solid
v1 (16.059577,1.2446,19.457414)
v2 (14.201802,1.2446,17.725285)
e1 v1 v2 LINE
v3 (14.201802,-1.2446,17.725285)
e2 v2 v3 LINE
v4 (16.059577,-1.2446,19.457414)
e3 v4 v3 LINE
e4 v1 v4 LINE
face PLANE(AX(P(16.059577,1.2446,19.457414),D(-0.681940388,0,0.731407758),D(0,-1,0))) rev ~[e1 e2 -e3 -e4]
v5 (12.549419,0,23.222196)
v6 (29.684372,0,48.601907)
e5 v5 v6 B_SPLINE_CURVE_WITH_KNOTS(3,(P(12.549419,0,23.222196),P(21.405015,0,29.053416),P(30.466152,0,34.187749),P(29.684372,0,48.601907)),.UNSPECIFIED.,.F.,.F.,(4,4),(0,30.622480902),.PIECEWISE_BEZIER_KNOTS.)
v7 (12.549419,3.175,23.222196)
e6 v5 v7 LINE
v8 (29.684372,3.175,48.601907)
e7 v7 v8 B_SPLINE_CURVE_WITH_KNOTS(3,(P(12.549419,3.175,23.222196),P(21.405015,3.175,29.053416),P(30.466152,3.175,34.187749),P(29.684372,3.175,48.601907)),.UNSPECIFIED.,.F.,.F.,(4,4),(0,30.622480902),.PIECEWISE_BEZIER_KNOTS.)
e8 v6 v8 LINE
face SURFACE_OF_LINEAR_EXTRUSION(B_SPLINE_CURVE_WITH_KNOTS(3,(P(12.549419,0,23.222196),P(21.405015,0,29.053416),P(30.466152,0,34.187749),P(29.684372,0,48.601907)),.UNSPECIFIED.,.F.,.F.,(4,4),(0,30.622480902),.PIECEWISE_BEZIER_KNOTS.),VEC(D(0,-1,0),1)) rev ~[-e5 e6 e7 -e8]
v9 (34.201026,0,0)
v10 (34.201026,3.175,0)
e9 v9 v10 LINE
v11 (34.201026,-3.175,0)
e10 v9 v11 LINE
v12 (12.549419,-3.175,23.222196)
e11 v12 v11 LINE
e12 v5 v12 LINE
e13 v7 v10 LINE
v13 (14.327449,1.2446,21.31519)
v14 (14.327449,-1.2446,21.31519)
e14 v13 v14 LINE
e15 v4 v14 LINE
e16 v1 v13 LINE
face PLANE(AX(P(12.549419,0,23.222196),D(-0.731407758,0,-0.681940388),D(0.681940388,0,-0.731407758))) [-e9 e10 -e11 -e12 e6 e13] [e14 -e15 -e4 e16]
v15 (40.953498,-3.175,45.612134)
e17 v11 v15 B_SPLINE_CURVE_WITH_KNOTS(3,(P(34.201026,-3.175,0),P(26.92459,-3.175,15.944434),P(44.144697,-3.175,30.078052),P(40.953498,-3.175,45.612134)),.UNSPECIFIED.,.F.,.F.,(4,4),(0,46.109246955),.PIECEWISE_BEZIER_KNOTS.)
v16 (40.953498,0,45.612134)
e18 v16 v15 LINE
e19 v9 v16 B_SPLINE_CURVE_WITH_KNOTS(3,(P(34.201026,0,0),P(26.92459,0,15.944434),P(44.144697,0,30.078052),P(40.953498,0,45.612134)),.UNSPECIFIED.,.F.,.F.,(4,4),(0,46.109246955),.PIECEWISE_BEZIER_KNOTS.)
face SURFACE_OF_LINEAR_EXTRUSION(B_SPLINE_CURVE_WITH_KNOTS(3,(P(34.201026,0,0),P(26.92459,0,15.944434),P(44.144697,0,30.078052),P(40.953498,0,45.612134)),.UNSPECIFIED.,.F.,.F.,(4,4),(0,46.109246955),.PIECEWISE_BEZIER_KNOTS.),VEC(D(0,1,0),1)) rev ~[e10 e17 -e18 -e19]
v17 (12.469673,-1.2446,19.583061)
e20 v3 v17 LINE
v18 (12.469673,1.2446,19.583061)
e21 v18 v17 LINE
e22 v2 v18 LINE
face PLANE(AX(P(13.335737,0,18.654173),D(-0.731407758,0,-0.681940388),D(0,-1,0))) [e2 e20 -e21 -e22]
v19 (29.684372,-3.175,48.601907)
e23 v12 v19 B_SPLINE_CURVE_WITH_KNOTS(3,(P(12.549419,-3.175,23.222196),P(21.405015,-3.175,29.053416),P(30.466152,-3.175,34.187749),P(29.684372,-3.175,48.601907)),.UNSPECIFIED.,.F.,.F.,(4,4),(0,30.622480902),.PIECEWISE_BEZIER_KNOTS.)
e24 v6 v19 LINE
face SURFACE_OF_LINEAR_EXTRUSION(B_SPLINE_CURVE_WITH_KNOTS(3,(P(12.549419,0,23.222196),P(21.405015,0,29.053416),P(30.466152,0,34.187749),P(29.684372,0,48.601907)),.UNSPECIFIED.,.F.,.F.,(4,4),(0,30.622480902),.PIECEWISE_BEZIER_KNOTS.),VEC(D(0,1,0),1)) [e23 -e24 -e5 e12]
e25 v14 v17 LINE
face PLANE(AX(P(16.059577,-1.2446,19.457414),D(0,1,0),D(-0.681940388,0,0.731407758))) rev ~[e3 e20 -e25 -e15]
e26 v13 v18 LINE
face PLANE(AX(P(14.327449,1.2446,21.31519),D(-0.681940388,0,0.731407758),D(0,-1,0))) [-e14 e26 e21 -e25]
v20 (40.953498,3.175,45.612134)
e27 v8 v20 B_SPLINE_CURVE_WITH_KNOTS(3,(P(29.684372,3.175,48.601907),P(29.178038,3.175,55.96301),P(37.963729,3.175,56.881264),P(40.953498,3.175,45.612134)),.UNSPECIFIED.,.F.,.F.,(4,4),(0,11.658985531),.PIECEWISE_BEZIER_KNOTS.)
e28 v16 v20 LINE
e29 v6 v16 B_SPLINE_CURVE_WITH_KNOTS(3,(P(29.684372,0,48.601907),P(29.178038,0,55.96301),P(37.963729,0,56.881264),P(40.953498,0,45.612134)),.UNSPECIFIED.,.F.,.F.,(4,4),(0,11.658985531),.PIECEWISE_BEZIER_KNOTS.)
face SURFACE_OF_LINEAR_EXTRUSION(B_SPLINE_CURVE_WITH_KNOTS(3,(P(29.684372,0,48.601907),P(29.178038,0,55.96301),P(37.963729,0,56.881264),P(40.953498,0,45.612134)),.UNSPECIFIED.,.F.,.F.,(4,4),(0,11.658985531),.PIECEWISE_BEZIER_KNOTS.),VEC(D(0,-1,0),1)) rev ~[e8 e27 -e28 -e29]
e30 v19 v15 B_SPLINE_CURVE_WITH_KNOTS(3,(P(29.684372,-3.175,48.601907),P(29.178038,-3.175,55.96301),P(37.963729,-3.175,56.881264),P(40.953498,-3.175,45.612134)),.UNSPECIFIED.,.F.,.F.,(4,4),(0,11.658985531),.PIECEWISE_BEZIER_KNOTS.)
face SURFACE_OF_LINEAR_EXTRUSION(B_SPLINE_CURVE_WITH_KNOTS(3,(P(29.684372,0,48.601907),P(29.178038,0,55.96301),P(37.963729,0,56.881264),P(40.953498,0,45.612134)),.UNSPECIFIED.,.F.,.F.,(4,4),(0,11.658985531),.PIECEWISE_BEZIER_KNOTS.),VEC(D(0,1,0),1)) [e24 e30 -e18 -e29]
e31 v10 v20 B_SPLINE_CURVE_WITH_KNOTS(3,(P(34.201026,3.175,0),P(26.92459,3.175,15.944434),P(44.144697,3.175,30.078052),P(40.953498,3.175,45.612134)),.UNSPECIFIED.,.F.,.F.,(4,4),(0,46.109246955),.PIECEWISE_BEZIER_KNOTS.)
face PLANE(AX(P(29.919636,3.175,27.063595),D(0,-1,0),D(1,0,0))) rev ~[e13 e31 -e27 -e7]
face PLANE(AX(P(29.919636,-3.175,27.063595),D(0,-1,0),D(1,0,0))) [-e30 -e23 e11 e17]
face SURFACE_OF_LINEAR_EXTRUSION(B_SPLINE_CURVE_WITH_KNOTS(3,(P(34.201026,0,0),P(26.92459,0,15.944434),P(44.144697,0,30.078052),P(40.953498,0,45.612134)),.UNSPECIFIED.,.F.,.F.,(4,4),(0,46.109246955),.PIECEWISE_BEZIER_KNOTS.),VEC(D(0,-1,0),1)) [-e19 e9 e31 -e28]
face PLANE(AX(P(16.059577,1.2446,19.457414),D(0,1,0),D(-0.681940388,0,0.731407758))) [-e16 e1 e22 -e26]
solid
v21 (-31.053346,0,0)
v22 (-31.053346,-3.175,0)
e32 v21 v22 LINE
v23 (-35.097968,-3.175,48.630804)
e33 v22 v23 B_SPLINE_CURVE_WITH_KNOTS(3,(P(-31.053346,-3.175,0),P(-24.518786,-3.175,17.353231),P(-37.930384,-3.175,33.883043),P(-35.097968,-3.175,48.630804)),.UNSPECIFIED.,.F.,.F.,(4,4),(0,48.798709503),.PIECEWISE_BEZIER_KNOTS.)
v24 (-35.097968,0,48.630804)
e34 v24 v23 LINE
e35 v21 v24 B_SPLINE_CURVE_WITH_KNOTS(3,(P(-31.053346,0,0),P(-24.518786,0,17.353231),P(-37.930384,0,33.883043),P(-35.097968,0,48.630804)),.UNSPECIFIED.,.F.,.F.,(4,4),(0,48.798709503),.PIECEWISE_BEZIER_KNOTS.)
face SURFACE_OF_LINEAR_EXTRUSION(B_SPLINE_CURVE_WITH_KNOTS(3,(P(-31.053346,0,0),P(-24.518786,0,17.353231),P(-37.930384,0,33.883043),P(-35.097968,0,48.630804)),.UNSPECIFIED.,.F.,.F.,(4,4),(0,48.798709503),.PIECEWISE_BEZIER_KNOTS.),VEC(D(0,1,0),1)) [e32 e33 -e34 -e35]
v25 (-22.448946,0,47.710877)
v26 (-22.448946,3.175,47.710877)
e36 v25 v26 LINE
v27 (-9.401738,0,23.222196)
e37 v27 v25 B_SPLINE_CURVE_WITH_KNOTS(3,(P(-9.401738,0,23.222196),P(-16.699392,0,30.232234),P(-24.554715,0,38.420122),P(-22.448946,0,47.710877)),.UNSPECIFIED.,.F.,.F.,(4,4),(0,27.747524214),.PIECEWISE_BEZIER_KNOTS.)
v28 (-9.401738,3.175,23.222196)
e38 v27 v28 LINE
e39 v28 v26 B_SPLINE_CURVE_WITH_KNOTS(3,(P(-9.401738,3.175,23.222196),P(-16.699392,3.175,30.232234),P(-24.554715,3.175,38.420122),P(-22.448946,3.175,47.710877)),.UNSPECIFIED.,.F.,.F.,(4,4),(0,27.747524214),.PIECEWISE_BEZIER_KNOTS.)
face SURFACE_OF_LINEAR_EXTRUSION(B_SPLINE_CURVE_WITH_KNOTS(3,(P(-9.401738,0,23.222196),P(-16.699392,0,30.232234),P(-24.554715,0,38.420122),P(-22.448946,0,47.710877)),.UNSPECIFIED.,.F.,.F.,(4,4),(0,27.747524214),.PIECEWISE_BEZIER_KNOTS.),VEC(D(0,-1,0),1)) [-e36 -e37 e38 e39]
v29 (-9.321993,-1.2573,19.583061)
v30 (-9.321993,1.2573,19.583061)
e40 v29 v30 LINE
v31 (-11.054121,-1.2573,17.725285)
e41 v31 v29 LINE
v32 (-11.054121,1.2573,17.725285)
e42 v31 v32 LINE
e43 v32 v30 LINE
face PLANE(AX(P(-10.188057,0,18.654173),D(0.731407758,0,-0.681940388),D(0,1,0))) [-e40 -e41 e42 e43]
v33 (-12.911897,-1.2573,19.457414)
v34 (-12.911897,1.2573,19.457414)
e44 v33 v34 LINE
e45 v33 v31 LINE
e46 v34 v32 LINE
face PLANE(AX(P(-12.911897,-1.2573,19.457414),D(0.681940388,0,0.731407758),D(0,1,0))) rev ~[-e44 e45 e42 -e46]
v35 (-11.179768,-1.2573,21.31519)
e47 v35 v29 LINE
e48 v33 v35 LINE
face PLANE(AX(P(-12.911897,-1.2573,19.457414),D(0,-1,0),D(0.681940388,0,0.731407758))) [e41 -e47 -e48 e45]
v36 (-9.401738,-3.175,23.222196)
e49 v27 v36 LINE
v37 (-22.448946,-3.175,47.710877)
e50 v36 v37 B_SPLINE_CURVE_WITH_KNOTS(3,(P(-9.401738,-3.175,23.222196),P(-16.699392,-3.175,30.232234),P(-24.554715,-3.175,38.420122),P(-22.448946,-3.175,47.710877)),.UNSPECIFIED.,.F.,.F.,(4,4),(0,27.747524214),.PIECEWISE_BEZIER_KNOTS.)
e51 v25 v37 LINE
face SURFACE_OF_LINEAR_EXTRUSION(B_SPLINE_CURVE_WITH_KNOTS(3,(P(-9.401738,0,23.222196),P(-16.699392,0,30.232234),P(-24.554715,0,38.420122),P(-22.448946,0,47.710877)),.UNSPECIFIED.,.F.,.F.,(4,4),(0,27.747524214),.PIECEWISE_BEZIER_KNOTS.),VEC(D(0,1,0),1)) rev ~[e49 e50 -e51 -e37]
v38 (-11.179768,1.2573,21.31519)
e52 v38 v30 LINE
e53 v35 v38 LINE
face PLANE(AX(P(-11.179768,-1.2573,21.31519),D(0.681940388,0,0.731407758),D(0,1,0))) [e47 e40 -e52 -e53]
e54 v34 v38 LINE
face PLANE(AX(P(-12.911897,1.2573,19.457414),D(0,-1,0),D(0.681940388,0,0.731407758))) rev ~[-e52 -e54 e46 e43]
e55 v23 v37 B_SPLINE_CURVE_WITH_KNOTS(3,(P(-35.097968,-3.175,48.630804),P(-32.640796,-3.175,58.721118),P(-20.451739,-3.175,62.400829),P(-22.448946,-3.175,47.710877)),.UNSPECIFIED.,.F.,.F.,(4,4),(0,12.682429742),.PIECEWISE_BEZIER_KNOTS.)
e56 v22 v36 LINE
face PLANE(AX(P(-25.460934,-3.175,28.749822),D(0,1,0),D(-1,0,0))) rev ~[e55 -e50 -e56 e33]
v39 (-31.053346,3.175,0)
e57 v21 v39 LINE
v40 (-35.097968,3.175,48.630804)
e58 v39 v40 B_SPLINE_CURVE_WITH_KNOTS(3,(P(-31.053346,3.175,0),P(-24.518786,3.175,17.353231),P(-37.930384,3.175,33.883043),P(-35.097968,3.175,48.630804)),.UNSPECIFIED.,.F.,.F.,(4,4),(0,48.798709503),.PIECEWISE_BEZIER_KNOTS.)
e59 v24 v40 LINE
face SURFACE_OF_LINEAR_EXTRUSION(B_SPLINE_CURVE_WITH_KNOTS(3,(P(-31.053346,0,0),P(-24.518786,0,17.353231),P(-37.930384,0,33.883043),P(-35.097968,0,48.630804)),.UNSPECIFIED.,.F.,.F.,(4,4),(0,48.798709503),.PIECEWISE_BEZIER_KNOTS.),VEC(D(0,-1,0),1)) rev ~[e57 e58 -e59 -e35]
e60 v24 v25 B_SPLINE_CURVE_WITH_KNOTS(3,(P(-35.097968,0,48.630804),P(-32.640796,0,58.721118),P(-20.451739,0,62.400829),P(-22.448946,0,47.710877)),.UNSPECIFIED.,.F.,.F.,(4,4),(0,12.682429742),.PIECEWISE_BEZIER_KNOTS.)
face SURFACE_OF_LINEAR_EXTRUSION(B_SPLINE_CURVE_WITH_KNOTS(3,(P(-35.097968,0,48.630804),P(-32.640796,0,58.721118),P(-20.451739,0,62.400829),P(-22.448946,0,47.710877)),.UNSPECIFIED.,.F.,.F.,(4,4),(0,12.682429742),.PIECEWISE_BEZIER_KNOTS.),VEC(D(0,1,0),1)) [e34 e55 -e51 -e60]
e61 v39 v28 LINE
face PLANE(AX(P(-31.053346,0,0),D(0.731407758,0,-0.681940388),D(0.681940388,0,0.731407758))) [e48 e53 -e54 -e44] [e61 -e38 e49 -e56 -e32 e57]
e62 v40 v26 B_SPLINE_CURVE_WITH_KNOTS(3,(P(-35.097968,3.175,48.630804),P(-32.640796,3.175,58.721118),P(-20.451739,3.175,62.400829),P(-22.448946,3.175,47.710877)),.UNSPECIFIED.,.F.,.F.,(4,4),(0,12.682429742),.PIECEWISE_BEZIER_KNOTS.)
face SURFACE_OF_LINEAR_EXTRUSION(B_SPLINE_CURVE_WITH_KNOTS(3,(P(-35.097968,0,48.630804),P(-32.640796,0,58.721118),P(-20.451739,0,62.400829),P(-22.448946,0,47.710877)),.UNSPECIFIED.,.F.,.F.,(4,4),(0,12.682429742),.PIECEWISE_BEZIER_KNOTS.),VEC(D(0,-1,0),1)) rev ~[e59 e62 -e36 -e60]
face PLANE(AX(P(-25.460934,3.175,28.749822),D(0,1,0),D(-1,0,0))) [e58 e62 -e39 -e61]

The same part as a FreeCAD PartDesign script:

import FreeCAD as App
import Part
import Sketcher

V = App.Vector
Q = App.Units.Quantity


def add_polygon(sketch, points):
    """Adds a closed chain of lines whose ends are joined by coincident constraints."""
    first, n = sketch.GeometryCount, len(points)
    for a, b in zip(points, points[1:] + points[:1]):
        sketch.addGeometry(Part.LineSegment(App.Vector(*a, 0), App.Vector(*b, 0)), False)
    for i in range(n):
        sketch.addConstraint(Sketcher.Constraint("Coincident", first + i, 2, first + (i + 1) % n, 1))

doc = App.newDocument("Part")
params = doc.addObject("Spreadsheet::Sheet", "Params")
for row, (alias, value) in enumerate([
    ("pad1_length", "0.25 in"),
    ("sketch2_height", "0.1 in"),
    ("sketch2_width", "0.099 in"),
    ("pad2_length", "0.1 in"),
    ("pad3_length", "0.25 in"),
    ("sketch4_height", "0.1 in"),
    ("sketch4_width", "0.098 in"),
    ("pad4_length", "0.1 in"),
], start=1):
    params.set(f"A{row}", alias)
    params.set(f"B{row}", "=" + value)
    params.setAlias(f"B{row}", alias)

body = doc.addObject("PartDesign::Body", "Body")

# Sketch on XZ plane
sketch1 = body.newObject("Sketcher::SketchObject", "Sketch")
sketch1.AttachmentSupport = (doc.getObject("XZ_Plane"), [""])
sketch1.MapMode = "FlatFace"
sketch1.addGeometry(Part.BSplineCurve([V(-31.053346, 0, 0), V(-24.518786, 17.353231, 0), V(-37.930384, 33.883043, 0), V(-35.097968, 48.630804, 0)], [4, 4], [0, 48.798709503], False, 3, [1, 1, 1, 1], False), False)
sketch1.addGeometry(Part.LineSegment(V(-31.053346, 0, 0), V(-9.401738, 23.222196, 0)), False)
sketch1.addGeometry(Part.BSplineCurve([V(-9.401738, 23.222196, 0), V(-16.699392, 30.232234, 0), V(-24.554715, 38.420122, 0), V(-22.448946, 47.710877, 0)], [4, 4], [0, 27.747524214], False, 3, [1, 1, 1, 1], False), False)
sketch1.addGeometry(Part.BSplineCurve([V(-35.097968, 48.630804, 0), V(-32.640796, 58.721118, 0), V(-20.451739, 62.400829, 0), V(-22.448946, 47.710877, 0)], [4, 4], [0, 12.682429742], False, 3, [1, 1, 1, 1], False), False)
sketch1.addConstraint(Sketcher.Constraint("Block", 0))
sketch1.addConstraint(Sketcher.Constraint("Block", 2))
sketch1.addConstraint(Sketcher.Constraint("Block", 3))
sketch1.addConstraint(Sketcher.Constraint("Coincident", 0, 1, 1, 1))
sketch1.addConstraint(Sketcher.Constraint("Coincident", 1, 2, 2, 1))
pad1 = body.newObject("PartDesign::Pad", "Pad")
pad1.Profile = sketch1
pad1.setExpression("Length", "Params.pad1_length")
pad1.Midplane = True

# Sketch on an angled plane
sketch2 = body.newObject("Sketcher::SketchObject", "Sketch001")
sketch2.Placement = App.Placement(V(-16.612214, 0, 15.488679), App.Rotation(V(0, 1, 0), V(0.681940388, 0, 0.731407758), V(0.731407758, 0, -0.681940388), "ZXY"))
add_polygon(sketch2, [(-1.3, 8), (-1.3, 5.4), (1.3, 5.4), (1.3, 8)])  # lines 0-3
sketch2.addConstraint(Sketcher.Constraint("Vertical", 0))
sketch2.addConstraint(Sketcher.Constraint("Horizontal", 1))
sketch2.addConstraint(Sketcher.Constraint("Vertical", 2))
sketch2.addConstraint(Sketcher.Constraint("Horizontal", 3))
sketch2.addConstraint(Sketcher.Constraint("DistanceY", 0, 2, 0, 1, Q("0.1 in")))
sketch2.addConstraint(Sketcher.Constraint("DistanceX", 1, 1, 1, 2, Q("0.099 in")))
sketch2.addConstraint(Sketcher.Constraint("DistanceX", 0, 2, -1, 1, Q("0.0495 in")))
sketch2.addConstraint(Sketcher.Constraint("DistanceY", -1, 1, 0, 2, 5.426159))
sketch2.setExpression("Constraints[8]", "Params.sketch2_height")
sketch2.setExpression("Constraints[9]", "Params.sketch2_width")
pad2 = body.newObject("PartDesign::Pad", "Pad001")
pad2.Profile = sketch2
pad2.setExpression("Length", "Params.pad2_length")
body2 = doc.addObject("PartDesign::Body", "Body001")

# Sketch on XZ plane
sketch3 = body2.newObject("Sketcher::SketchObject", "Sketch002")
sketch3.AttachmentSupport = (doc.getObject("XZ_Plane001"), [""])
sketch3.MapMode = "FlatFace"
sketch3.addGeometry(Part.LineSegment(V(12.549419, 23.222196, 0), V(34.201026, 0, 0)), False)
sketch3.addGeometry(Part.BSplineCurve([V(34.201026, 0, 0), V(26.92459, 15.944434, 0), V(44.144697, 30.078052, 0), V(40.953498, 45.612134, 0)], [4, 4], [0, 46.109246955], False, 3, [1, 1, 1, 1], False), False)
sketch3.addGeometry(Part.BSplineCurve([V(29.684372, 48.601907, 0), V(29.178038, 55.96301, 0), V(37.963729, 56.881264, 0), V(40.953498, 45.612134, 0)], [4, 4], [0, 11.658985531], False, 3, [1, 1, 1, 1], False), False)
sketch3.addGeometry(Part.BSplineCurve([V(12.549419, 23.222196, 0), V(21.405015, 29.053416, 0), V(30.466152, 34.187749, 0), V(29.684372, 48.601907, 0)], [4, 4], [0, 30.622480902], False, 3, [1, 1, 1, 1], False), False)
sketch3.addConstraint(Sketcher.Constraint("Block", 1))
sketch3.addConstraint(Sketcher.Constraint("Block", 2))
sketch3.addConstraint(Sketcher.Constraint("Block", 3))
sketch3.addConstraint(Sketcher.Constraint("Coincident", 0, 2, 1, 1))
sketch3.addConstraint(Sketcher.Constraint("Coincident", 3, 1, 0, 1))
pad3 = body2.newObject("PartDesign::Pad", "Pad002")
pad3.Profile = sketch3
pad3.setExpression("Length", "Params.pad3_length")
pad3.Midplane = True

# Sketch on an angled plane
sketch4 = body2.newObject("Sketcher::SketchObject", "Sketch003")
sketch4.Placement = App.Placement(V(18.296089, 0, 17.058668), App.Rotation(V(0, -1, 0), V(-0.681940388, 0, 0.731407758), V(-0.731407758, 0, -0.681940388), "ZXY"))
add_polygon(sketch4, [(-1.2, 5.8), (-1.2, 3.3), (1.2, 3.3), (1.2, 5.8)])  # lines 0-3
sketch4.addConstraint(Sketcher.Constraint("Vertical", 0))
sketch4.addConstraint(Sketcher.Constraint("Horizontal", 1))
sketch4.addConstraint(Sketcher.Constraint("Vertical", 2))
sketch4.addConstraint(Sketcher.Constraint("Horizontal", 3))
sketch4.addConstraint(Sketcher.Constraint("DistanceY", 0, 2, 0, 1, Q("0.1 in")))
sketch4.addConstraint(Sketcher.Constraint("DistanceX", 1, 1, 1, 2, Q("0.098 in")))
sketch4.addConstraint(Sketcher.Constraint("DistanceX", 0, 2, -1, 1, Q("0.049 in")))
sketch4.addConstraint(Sketcher.Constraint("DistanceY", -1, 1, 0, 2, 3.279629))
sketch4.setExpression("Constraints[8]", "Params.sketch4_height")
sketch4.setExpression("Constraints[9]", "Params.sketch4_width")
pad4 = body2.newObject("PartDesign::Pad", "Pad003")
pad4.Profile = sketch4
pad4.setExpression("Length", "Params.pad4_length")

doc.recompute()
